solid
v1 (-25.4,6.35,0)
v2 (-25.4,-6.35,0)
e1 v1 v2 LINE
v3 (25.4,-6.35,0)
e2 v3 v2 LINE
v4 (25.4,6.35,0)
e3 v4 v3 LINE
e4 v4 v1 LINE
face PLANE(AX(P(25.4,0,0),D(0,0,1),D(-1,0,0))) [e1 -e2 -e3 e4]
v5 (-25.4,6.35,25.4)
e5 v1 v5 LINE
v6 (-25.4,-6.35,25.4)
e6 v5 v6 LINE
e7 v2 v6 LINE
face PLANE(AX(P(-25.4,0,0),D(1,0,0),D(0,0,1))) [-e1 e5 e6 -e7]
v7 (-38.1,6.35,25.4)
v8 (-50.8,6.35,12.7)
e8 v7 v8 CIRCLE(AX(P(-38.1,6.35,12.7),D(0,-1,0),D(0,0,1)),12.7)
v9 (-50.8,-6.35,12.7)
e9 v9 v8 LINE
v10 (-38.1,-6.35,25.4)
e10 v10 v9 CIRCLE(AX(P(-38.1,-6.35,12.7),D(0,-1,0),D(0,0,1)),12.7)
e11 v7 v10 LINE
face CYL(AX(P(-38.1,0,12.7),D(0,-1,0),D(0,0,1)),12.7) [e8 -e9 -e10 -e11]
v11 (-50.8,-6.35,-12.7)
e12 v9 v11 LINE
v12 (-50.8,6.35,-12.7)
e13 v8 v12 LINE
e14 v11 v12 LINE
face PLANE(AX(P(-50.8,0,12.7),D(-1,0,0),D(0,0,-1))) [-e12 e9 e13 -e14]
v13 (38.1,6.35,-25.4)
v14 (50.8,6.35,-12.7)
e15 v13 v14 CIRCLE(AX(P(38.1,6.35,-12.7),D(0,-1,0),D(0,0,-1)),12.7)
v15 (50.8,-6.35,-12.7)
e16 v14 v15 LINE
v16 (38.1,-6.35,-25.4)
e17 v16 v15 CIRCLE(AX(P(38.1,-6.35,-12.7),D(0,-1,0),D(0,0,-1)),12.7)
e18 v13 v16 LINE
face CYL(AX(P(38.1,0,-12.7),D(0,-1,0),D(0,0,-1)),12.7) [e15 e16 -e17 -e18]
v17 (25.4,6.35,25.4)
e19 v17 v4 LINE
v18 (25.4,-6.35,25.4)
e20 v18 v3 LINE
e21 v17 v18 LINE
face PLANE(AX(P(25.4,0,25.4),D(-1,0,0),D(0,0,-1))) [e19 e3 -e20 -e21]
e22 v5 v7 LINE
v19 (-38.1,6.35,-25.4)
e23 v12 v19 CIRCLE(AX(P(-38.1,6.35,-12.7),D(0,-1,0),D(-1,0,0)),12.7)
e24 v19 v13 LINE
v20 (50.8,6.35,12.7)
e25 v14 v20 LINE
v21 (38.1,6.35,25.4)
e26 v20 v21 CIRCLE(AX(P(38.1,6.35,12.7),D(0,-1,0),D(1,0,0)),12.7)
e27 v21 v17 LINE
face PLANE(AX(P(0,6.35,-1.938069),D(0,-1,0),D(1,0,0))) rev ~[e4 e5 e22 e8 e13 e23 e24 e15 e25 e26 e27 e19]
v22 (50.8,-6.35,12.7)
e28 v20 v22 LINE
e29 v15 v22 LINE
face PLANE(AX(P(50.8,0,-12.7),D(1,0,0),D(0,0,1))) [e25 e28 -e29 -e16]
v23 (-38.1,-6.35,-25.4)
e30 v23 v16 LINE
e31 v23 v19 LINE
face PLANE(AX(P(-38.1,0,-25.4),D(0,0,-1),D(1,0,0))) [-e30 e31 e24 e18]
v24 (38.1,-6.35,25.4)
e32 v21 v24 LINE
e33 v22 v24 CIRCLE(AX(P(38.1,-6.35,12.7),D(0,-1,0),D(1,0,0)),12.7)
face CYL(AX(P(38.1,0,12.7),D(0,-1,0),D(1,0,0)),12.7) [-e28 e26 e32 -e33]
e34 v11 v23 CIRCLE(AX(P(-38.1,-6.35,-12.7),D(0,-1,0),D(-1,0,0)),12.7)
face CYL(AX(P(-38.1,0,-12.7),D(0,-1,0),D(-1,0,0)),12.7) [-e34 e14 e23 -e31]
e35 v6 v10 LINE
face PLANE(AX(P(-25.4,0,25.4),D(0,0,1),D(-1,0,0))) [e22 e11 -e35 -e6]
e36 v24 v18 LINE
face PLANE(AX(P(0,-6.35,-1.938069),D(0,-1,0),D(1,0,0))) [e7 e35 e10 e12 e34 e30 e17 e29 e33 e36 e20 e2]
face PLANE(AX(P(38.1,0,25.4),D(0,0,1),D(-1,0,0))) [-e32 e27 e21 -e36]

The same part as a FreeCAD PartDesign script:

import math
import FreeCAD as App
import Part
import Sketcher
Q = App.Units.Quantity

doc = App.newDocument("Part")
body = doc.addObject("PartDesign::Body", "Body")

sketch1 = doc.addObject("Sketcher::SketchObject", "Sketch")
body.addObject(sketch1)
sketch1.AttachmentSupport = (doc.XZ_Plane, [""])
sketch1.MapMode = "FlatFace"
sketch1.addGeometry([
    Part.LineSegment(App.Vector(-38, -25, 0), App.Vector(38, -25, 0)),
    Part.ArcOfCircle(Part.Circle(App.Vector(38, -13, 0), App.Vector(0, 0, 1), 13), math.radians(-90), math.radians(0)),
    Part.LineSegment(App.Vector(51, -13, 0), App.Vector(51, 13, 0)),
    Part.ArcOfCircle(Part.Circle(App.Vector(38, 13, 0), App.Vector(0, 0, 1), 13), math.radians(0), math.radians(90)),
    Part.LineSegment(App.Vector(38, 25, 0), App.Vector(25, 25, 0)),
    Part.LineSegment(App.Vector(25, 25, 0), App.Vector(25, 0, 0)),
    Part.LineSegment(App.Vector(25, 0, 0), App.Vector(-25, 0, 0)),
    Part.LineSegment(App.Vector(-25, 0, 0), App.Vector(-25, 25, 0)),
    Part.LineSegment(App.Vector(-25, 25, 0), App.Vector(-38, 25, 0)),
    Part.ArcOfCircle(Part.Circle(App.Vector(-38, 13, 0), App.Vector(0, 0, 1), 13), math.radians(90), math.radians(180)),
    Part.LineSegment(App.Vector(-51, 13, 0), App.Vector(-51, -13, 0)),
    Part.ArcOfCircle(Part.Circle(App.Vector(-38, -13, 0), App.Vector(0, 0, 1), 13), math.radians(180), math.radians(270)),
], False)
sketch1.addConstraint([
    Sketcher.Constraint("Tangent", 0, 2, 1, 1),
    Sketcher.Constraint("Tangent", 1, 2, 2, 1),
    Sketcher.Constraint("Tangent", 2, 2, 3, 1),
    Sketcher.Constraint("Tangent", 3, 2, 4, 1),
    Sketcher.Constraint("Coincident", 4, 2, 5, 1),
    Sketcher.Constraint("Coincident", 5, 2, 6, 1),
    Sketcher.Constraint("Coincident", 6, 2, 7, 1),
    Sketcher.Constraint("Coincident", 7, 2, 8, 1),
    Sketcher.Constraint("Tangent", 8, 2, 9, 1),
    Sketcher.Constraint("Tangent", 9, 2, 10, 1),
    Sketcher.Constraint("Tangent", 10, 2, 11, 1),
    Sketcher.Constraint("Tangent", 11, 2, 0, 1),
    Sketcher.Constraint("Horizontal", 0),
    Sketcher.Constraint("Vertical", 2),
    Sketcher.Constraint("Horizontal", 4),
    Sketcher.Constraint("Vertical", 5),
    Sketcher.Constraint("Horizontal", 6),
    Sketcher.Constraint("Vertical", 7),
    Sketcher.Constraint("Horizontal", 8),
    Sketcher.Constraint("Vertical", 10),
    Sketcher.Constraint("Equal", 1, 3),
    Sketcher.Constraint("Equal", 3, 9),
    Sketcher.Constraint("Equal", 9, 11),
    Sketcher.Constraint("Symmetric", 1, 3, 9, 3, -1, 1),
    Sketcher.Constraint("Symmetric", 5, 2, 6, 2, -1, 1),
    Sketcher.Constraint("Horizontal", 3, 3, 9, 3),
    Sketcher.Constraint("Equal", 2, 5),
    Sketcher.Constraint("Radius", 1, Q("0.5 in")),
    Sketcher.Constraint("DistanceX", 0, 1, 0, 2, Q("3 in")),
    Sketcher.Constraint("DistanceX", 6, 2, 6, 1, Q("2 in")),
])
pad1 = doc.addObject("PartDesign::Pad", "Pad")
body.addObject(pad1)
pad1.Profile = sketch1
pad1.Length = Q("0.5 in")
pad1.Midplane = True

doc.recompute()
